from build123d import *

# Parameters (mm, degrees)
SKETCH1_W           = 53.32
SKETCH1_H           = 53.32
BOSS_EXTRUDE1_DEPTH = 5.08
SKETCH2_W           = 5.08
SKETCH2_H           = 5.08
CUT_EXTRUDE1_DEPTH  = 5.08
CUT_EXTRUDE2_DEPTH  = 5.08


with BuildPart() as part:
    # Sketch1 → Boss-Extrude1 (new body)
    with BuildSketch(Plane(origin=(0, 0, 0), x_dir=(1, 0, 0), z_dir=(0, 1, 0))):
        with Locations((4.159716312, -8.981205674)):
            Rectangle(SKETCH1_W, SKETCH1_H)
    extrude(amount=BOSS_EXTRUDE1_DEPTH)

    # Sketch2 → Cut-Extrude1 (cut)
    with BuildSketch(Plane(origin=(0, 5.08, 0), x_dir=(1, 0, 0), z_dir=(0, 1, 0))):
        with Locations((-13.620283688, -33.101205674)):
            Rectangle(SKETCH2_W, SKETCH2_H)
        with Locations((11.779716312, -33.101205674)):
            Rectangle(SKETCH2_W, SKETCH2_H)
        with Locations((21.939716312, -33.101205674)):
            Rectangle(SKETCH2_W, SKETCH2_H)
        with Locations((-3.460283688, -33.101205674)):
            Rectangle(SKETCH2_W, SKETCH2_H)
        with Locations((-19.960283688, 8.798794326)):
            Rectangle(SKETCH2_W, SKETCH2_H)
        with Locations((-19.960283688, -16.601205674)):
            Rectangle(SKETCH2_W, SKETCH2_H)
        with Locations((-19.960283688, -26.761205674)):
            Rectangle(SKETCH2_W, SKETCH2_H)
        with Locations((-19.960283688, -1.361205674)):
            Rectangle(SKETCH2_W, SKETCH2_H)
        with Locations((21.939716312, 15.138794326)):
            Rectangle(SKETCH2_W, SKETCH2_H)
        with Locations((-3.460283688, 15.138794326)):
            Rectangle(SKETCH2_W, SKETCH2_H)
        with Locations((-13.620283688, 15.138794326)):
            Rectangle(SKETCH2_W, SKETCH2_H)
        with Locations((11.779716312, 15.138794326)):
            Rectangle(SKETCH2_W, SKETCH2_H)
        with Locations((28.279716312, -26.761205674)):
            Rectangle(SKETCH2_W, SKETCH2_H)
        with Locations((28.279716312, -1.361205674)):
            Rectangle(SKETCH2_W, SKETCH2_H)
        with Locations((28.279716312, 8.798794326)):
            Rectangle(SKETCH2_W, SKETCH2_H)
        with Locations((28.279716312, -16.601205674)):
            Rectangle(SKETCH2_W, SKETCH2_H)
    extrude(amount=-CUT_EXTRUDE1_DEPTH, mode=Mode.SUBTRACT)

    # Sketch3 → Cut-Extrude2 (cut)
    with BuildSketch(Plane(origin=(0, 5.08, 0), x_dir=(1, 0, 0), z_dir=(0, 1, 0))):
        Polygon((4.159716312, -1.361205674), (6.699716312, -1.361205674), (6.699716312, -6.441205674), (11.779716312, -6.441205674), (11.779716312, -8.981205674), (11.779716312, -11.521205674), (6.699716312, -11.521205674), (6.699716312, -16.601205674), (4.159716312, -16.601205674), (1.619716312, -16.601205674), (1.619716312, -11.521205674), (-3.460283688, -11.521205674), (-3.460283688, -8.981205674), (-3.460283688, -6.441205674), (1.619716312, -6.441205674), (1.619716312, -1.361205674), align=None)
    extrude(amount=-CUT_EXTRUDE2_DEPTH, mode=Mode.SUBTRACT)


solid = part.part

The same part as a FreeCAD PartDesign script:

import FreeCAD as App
import Part
import Sketcher

V = App.Vector
Q = App.Units.Quantity

doc = App.newDocument("Part")
params = doc.addObject("Spreadsheet::Sheet", "Params")
for row, (alias, value) in enumerate([
    ("pad1_length", "0.2 in"),
    ("sketch2_width", "0.2 in"),
    ("pocket1_length", "0.2 in"),
    ("sketch3_width", "0.2 in"),
    ("pocket2_length", "0.2 in"),
], start=1):
    params.set(f"A{row}", alias)
    params.set(f"B{row}", "=" + value)
    params.setAlias(f"B{row}", alias)

body = doc.addObject("PartDesign::Body", "Body")

# Sketch on XZ plane
sketch1 = body.newObject("Sketcher::SketchObject", "Sketch")
sketch1.AttachmentSupport = (doc.getObject("XZ_Plane"), [""])
sketch1.MapMode = "FlatFace"
sketch1.addGeometry(Part.LineSegment(V(-23, -18, 0), V(-23, 36, 0)), False)
sketch1.addGeometry(Part.LineSegment(V(-23, 36, 0), V(31, 36, 0)), False)
sketch1.addGeometry(Part.LineSegment(V(31, 36, 0), V(31, -18, 0)), False)
sketch1.addGeometry(Part.LineSegment(V(31, -18, 0), V(-23, -18, 0)), False)
sketch1.addConstraint(Sketcher.Constraint("Coincident", 0, 2, 1, 1))
sketch1.addConstraint(Sketcher.Constraint("Coincident", 1, 2, 2, 1))
sketch1.addConstraint(Sketcher.Constraint("Coincident", 2, 2, 3, 1))
sketch1.addConstraint(Sketcher.Constraint("Coincident", 3, 2, 0, 1))
sketch1.addConstraint(Sketcher.Constraint("Vertical", 0))
sketch1.addConstraint(Sketcher.Constraint("Horizontal", 1))
sketch1.addConstraint(Sketcher.Constraint("Vertical", 2))
sketch1.addConstraint(Sketcher.Constraint("Horizontal", 3))
sketch1.addConstraint(Sketcher.Constraint("Equal", 3, 0))
sketch1.addConstraint(Sketcher.Constraint("DistanceX", 1, 1, 1, 2, Q("53.32 mm")))
sketch1.addConstraint(Sketcher.Constraint("DistanceX", 0, 2, -1, 1, Q("22.500284 mm")))
sketch1.addConstraint(Sketcher.Constraint("DistanceY", -1, 1, 0, 2, Q("35.641206 mm")))
pad1 = body.newObject("PartDesign::Pad", "Pad")
pad1.Profile = sketch1
pad1.setExpression("Length", "Params.pad1_length")
pad1.Reversed = True

# Sketch on XZ plane
sketch2 = body.newObject("Sketcher::SketchObject", "Sketch001")
sketch2.AttachmentSupport = (doc.getObject("XZ_Plane"), [""])
sketch2.MapMode = "FlatFace"
sketch2.AttachmentOffset = App.Placement(V(0, 0, -0.2 * 25.4), App.Rotation())
sketch2.addGeometry(Part.LineSegment(V(-16, 31, 0), V(-16, 36, 0)), False)
sketch2.addGeometry(Part.LineSegment(V(-16, 36, 0), V(-11, 36, 0)), False)
sketch2.addGeometry(Part.LineSegment(V(-11, 36, 0), V(-11, 31, 0)), False)
sketch2.addGeometry(Part.LineSegment(V(-11, 31, 0), V(-16, 31, 0)), False)
sketch2.addGeometry(Part.LineSegment(V(9, 31, 0), V(9, 36, 0)), False)
sketch2.addGeometry(Part.LineSegment(V(9, 36, 0), V(14, 36, 0)), False)
sketch2.addGeometry(Part.LineSegment(V(14, 36, 0), V(14, 31, 0)), False)
sketch2.addGeometry(Part.LineSegment(V(14, 31, 0), V(9, 31, 0)), False)
sketch2.addGeometry(Part.LineSegment(V(19, 31, 0), V(19, 36, 0)), False)
sketch2.addGeometry(Part.LineSegment(V(19, 36, 0), V(24, 36, 0)), False)
sketch2.addGeometry(Part.LineSegment(V(24, 36, 0), V(24, 31, 0)), False)
sketch2.addGeometry(Part.LineSegment(V(24, 31, 0), V(19, 31, 0)), False)
sketch2.addGeometry(Part.LineSegment(V(-6, 31, 0), V(-6, 36, 0)), False)
sketch2.addGeometry(Part.LineSegment(V(-6, 36, 0), V(-1, 36, 0)), False)
sketch2.addGeometry(Part.LineSegment(V(-1, 36, 0), V(-1, 31, 0)), False)
sketch2.addGeometry(Part.LineSegment(V(-1, 31, 0), V(-6, 31, 0)), False)
sketch2.addGeometry(Part.LineSegment(V(-23, -11, 0), V(-23, -6, 0)), False)
sketch2.addGeometry(Part.LineSegment(V(-23, -6, 0), V(-17, -6, 0)), False)
sketch2.addGeometry(Part.LineSegment(V(-17, -6, 0), V(-17, -11, 0)), False)
sketch2.addGeometry(Part.LineSegment(V(-17, -11, 0), V(-23, -11, 0)), False)
sketch2.addGeometry(Part.LineSegment(V(-23, 14, 0), V(-23, 19, 0)), False)
sketch2.addGeometry(Part.LineSegment(V(-23, 19, 0), V(-17, 19, 0)), False)
sketch2.addGeometry(Part.LineSegment(V(-17, 19, 0), V(-17, 14, 0)), False)
sketch2.addGeometry(Part.LineSegment(V(-17, 14, 0), V(-23, 14, 0)), False)
sketch2.addGeometry(Part.LineSegment(V(-23, 24, 0), V(-23, 29, 0)), False)
sketch2.addGeometry(Part.LineSegment(V(-23, 29, 0), V(-17, 29, 0)), False)
sketch2.addGeometry(Part.LineSegment(V(-17, 29, 0), V(-17, 24, 0)), False)
sketch2.addGeometry(Part.LineSegment(V(-17, 24, 0), V(-23, 24, 0)), False)
sketch2.addGeometry(Part.LineSegment(V(-23, -1, 0), V(-23, 4, 0)), False)
sketch2.addGeometry(Part.LineSegment(V(-23, 4, 0), V(-17, 4, 0)), False)
sketch2.addGeometry(Part.LineSegment(V(-17, 4, 0), V(-17, -1, 0)), False)
sketch2.addGeometry(Part.LineSegment(V(-17, -1, 0), V(-23, -1, 0)), False)
sketch2.addGeometry(Part.LineSegment(V(19, -18, 0), V(19, -13, 0)), False)
sketch2.addGeometry(Part.LineSegment(V(19, -13, 0), V(24, -13, 0)), False)
sketch2.addGeometry(Part.LineSegment(V(24, -13, 0), V(24, -18, 0)), False)
sketch2.addGeometry(Part.LineSegment(V(24, -18, 0), V(19, -18, 0)), False)
sketch2.addGeometry(Part.LineSegment(V(-6, -18, 0), V(-6, -13, 0)), False)
sketch2.addGeometry(Part.LineSegment(V(-6, -13, 0), V(-1, -13, 0)), False)
sketch2.addGeometry(Part.LineSegment(V(-1, -13, 0), V(-1, -18, 0)), False)
sketch2.addGeometry(Part.LineSegment(V(-1, -18, 0), V(-6, -18, 0)), False)
sketch2.addGeometry(Part.LineSegment(V(-16, -18, 0), V(-16, -13, 0)), False)
sketch2.addGeometry(Part.LineSegment(V(-16, -13, 0), V(-11, -13, 0)), False)
sketch2.addGeometry(Part.LineSegment(V(-11, -13, 0), V(-11, -18, 0)), False)
sketch2.addGeometry(Part.LineSegment(V(-11, -18, 0), V(-16, -18, 0)), False)
sketch2.addGeometry(Part.LineSegment(V(9, -18, 0), V(9, -13, 0)), False)
sketch2.addGeometry(Part.LineSegment(V(9, -13, 0), V(14, -13, 0)), False)
sketch2.addGeometry(Part.LineSegment(V(14, -13, 0), V(14, -18, 0)), False)
sketch2.addGeometry(Part.LineSegment(V(14, -18, 0), V(9, -18, 0)), False)
sketch2.addGeometry(Part.LineSegment(V(26, 24, 0), V(26, 29, 0)), False)
sketch2.addGeometry(Part.LineSegment(V(26, 29, 0), V(31, 29, 0)), False)
sketch2.addGeometry(Part.LineSegment(V(31, 29, 0), V(31, 24, 0)), False)
sketch2.addGeometry(Part.LineSegment(V(31, 24, 0), V(26, 24, 0)), False)
sketch2.addGeometry(Part.LineSegment(V(26, -1, 0), V(26, 4, 0)), False)
sketch2.addGeometry(Part.LineSegment(V(26, 4, 0), V(31, 4, 0)), False)
sketch2.addGeometry(Part.LineSegment(V(31, 4, 0), V(31, -1, 0)), False)
sketch2.addGeometry(Part.LineSegment(V(31, -1, 0), V(26, -1, 0)), False)
sketch2.addGeometry(Part.LineSegment(V(26, -11, 0), V(26, -6, 0)), False)
sketch2.addGeometry(Part.LineSegment(V(26, -6, 0), V(31, -6, 0)), False)
sketch2.addGeometry(Part.LineSegment(V(31, -6, 0), V(31, -11, 0)), False)
sketch2.addGeometry(Part.LineSegment(V(31, -11, 0), V(26, -11, 0)), False)
sketch2.addGeometry(Part.LineSegment(V(26, 14, 0), V(26, 19, 0)), False)
sketch2.addGeometry(Part.LineSegment(V(26, 19, 0), V(31, 19, 0)), False)
sketch2.addGeometry(Part.LineSegment(V(31, 19, 0), V(31, 14, 0)), False)
sketch2.addGeometry(Part.LineSegment(V(31, 14, 0), V(26, 14, 0)), False)
sketch2.addConstraint(Sketcher.Constraint("Coincident", 0, 2, 1, 1))
sketch2.addConstraint(Sketcher.Constraint("Coincident", 1, 2, 2, 1))
sketch2.addConstraint(Sketcher.Constraint("Coincident", 2, 2, 3, 1))
sketch2.addConstraint(Sketcher.Constraint("Coincident", 3, 2, 0, 1))
sketch2.addConstraint(Sketcher.Constraint("Coincident", 4, 2, 5, 1))
sketch2.addConstraint(Sketcher.Constraint("Coincident", 5, 2, 6, 1))
sketch2.addConstraint(Sketcher.Constraint("Coincident", 6, 2, 7, 1))
sketch2.addConstraint(Sketcher.Constraint("Coincident", 7, 2, 4, 1))
sketch2.addConstraint(Sketcher.Constraint("Coincident", 8, 2, 9, 1))
sketch2.addConstraint(Sketcher.Constraint("Coincident", 9, 2, 10, 1))
sketch2.addConstraint(Sketcher.Constraint("Coincident", 10, 2, 11, 1))
sketch2.addConstraint(Sketcher.Constraint("Coincident", 11, 2, 8, 1))
sketch2.addConstraint(Sketcher.Constraint("Coincident", 12, 2, 13, 1))
sketch2.addConstraint(Sketcher.Constraint("Coincident", 13, 2, 14, 1))
sketch2.addConstraint(Sketcher.Constraint("Coincident", 14, 2, 15, 1))
sketch2.addConstraint(Sketcher.Constraint("Coincident", 15, 2, 12, 1))
sketch2.addConstraint(Sketcher.Constraint("Coincident", 16, 2, 17, 1))
sketch2.addConstraint(Sketcher.Constraint("Coincident", 17, 2, 18, 1))
sketch2.addConstraint(Sketcher.Constraint("Coincident", 18, 2, 19, 1))
sketch2.addConstraint(Sketcher.Constraint("Coincident", 19, 2, 16, 1))
sketch2.addConstraint(Sketcher.Constraint("Coincident", 20, 2, 21, 1))
sketch2.addConstraint(Sketcher.Constraint("Coincident", 21, 2, 22, 1))
sketch2.addConstraint(Sketcher.Constraint("Coincident", 22, 2, 23, 1))
sketch2.addConstraint(Sketcher.Constraint("Coincident", 23, 2, 20, 1))
sketch2.addConstraint(Sketcher.Constraint("Coincident", 24, 2, 25, 1))
sketch2.addConstraint(Sketcher.Constraint("Coincident", 25, 2, 26, 1))
sketch2.addConstraint(Sketcher.Constraint("Coincident", 26, 2, 27, 1))
sketch2.addConstraint(Sketcher.Constraint("Coincident", 27, 2, 24, 1))
sketch2.addConstraint(Sketcher.Constraint("Coincident", 28, 2, 29, 1))
sketch2.addConstraint(Sketcher.Constraint("Coincident", 29, 2, 30, 1))
sketch2.addConstraint(Sketcher.Constraint("Coincident", 30, 2, 31, 1))
sketch2.addConstraint(Sketcher.Constraint("Coincident", 31, 2, 28, 1))
sketch2.addConstraint(Sketcher.Constraint("Coincident", 32, 2, 33, 1))
sketch2.addConstraint(Sketcher.Constraint("Coincident", 33, 2, 34, 1))
sketch2.addConstraint(Sketcher.Constraint("Coincident", 34, 2, 35, 1))
sketch2.addConstraint(Sketcher.Constraint("Coincident", 35, 2, 32, 1))
sketch2.addConstraint(Sketcher.Constraint("Coincident", 36, 2, 37, 1))
sketch2.addConstraint(Sketcher.Constraint("Coincident", 37, 2, 38, 1))
sketch2.addConstraint(Sketcher.Constraint("Coincident", 38, 2, 39, 1))
sketch2.addConstraint(Sketcher.Constraint("Coincident", 39, 2, 36, 1))
sketch2.addConstraint(Sketcher.Constraint("Coincident", 40, 2, 41, 1))
sketch2.addConstraint(Sketcher.Constraint("Coincident", 41, 2, 42, 1))
sketch2.addConstraint(Sketcher.Constraint("Coincident", 42, 2, 43, 1))
sketch2.addConstraint(Sketcher.Constraint("Coincident", 43, 2, 40, 1))
sketch2.addConstraint(Sketcher.Constraint("Coincident", 44, 2, 45, 1))
sketch2.addConstraint(Sketcher.Constraint("Coincident", 45, 2, 46, 1))
sketch2.addConstraint(Sketcher.Constraint("Coincident", 46, 2, 47, 1))
sketch2.addConstraint(Sketcher.Constraint("Coincident", 47, 2, 44, 1))
sketch2.addConstraint(Sketcher.Constraint("Coincident", 48, 2, 49, 1))
sketch2.addConstraint(Sketcher.Constraint("Coincident", 49, 2, 50, 1))
sketch2.addConstraint(Sketcher.Constraint("Coincident", 50, 2, 51, 1))
sketch2.addConstraint(Sketcher.Constraint("Coincident", 51, 2, 48, 1))
sketch2.addConstraint(Sketcher.Constraint("Coincident", 52, 2, 53, 1))
sketch2.addConstraint(Sketcher.Constraint("Coincident", 53, 2, 54, 1))
sketch2.addConstraint(Sketcher.Constraint("Coincident", 54, 2, 55, 1))
sketch2.addConstraint(Sketcher.Constraint("Coincident", 55, 2, 52, 1))
sketch2.addConstraint(Sketcher.Constraint("Coincident", 56, 2, 57, 1))
sketch2.addConstraint(Sketcher.Constraint("Coincident", 57, 2, 58, 1))
sketch2.addConstraint(Sketcher.Constraint("Coincident", 58, 2, 59, 1))
sketch2.addConstraint(Sketcher.Constraint("Coincident", 59, 2, 56, 1))
sketch2.addConstraint(Sketcher.Constraint("Coincident", 60, 2, 61, 1))
sketch2.addConstraint(Sketcher.Constraint("Coincident", 61, 2, 62, 1))
sketch2.addConstraint(Sketcher.Constraint("Coincident", 62, 2, 63, 1))
sketch2.addConstraint(Sketcher.Constraint("Coincident", 63, 2, 60, 1))
sketch2.addConstraint(Sketcher.Constraint("Vertical", 0))
sketch2.addConstraint(Sketcher.Constraint("Horizontal", 1))
sketch2.addConstraint(Sketcher.Constraint("Vertical", 2))
sketch2.addConstraint(Sketcher.Constraint("Horizontal", 3))
sketch2.addConstraint(Sketcher.Constraint("Vertical", 4))
sketch2.addConstraint(Sketcher.Constraint("Horizontal", 5))
sketch2.addConstraint(Sketcher.Constraint("Vertical", 6))
sketch2.addConstraint(Sketcher.Constraint("Horizontal", 7))
sketch2.addConstraint(Sketcher.Constraint("Vertical", 8))
sketch2.addConstraint(Sketcher.Constraint("Horizontal", 9))
sketch2.addConstraint(Sketcher.Constraint("Vertical", 10))
sketch2.addConstraint(Sketcher.Constraint("Horizontal", 11))
sketch2.addConstraint(Sketcher.Constraint("Vertical", 12))
sketch2.addConstraint(Sketcher.Constraint("Horizontal", 13))
sketch2.addConstraint(Sketcher.Constraint("Vertical", 14))
sketch2.addConstraint(Sketcher.Constraint("Horizontal", 15))
sketch2.addConstraint(Sketcher.Constraint("Vertical", 16))
sketch2.addConstraint(Sketcher.Constraint("Horizontal", 17))
sketch2.addConstraint(Sketcher.Constraint("Vertical", 18))
sketch2.addConstraint(Sketcher.Constraint("Horizontal", 19))
sketch2.addConstraint(Sketcher.Constraint("Vertical", 20))
sketch2.addConstraint(Sketcher.Constraint("Horizontal", 21))
sketch2.addConstraint(Sketcher.Constraint("Vertical", 22))
sketch2.addConstraint(Sketcher.Constraint("Horizontal", 23))
sketch2.addConstraint(Sketcher.Constraint("Vertical", 24))
sketch2.addConstraint(Sketcher.Constraint("Horizontal", 25))
sketch2.addConstraint(Sketcher.Constraint("Vertical", 26))
sketch2.addConstraint(Sketcher.Constraint("Horizontal", 27))
sketch2.addConstraint(Sketcher.Constraint("Vertical", 28))
sketch2.addConstraint(Sketcher.Constraint("Horizontal", 29))
sketch2.addConstraint(Sketcher.Constraint("Vertical", 30))
sketch2.addConstraint(Sketcher.Constraint("Horizontal", 31))
sketch2.addConstraint(Sketcher.Constraint("Vertical", 32))
sketch2.addConstraint(Sketcher.Constraint("Horizontal", 33))
sketch2.addConstraint(Sketcher.Constraint("Vertical", 34))
sketch2.addConstraint(Sketcher.Constraint("Horizontal", 35))
sketch2.addConstraint(Sketcher.Constraint("Vertical", 36))
sketch2.addConstraint(Sketcher.Constraint("Horizontal", 37))
sketch2.addConstraint(Sketcher.Constraint("Vertical", 38))
sketch2.addConstraint(Sketcher.Constraint("Horizontal", 39))
sketch2.addConstraint(Sketcher.Constraint("Vertical", 40))
sketch2.addConstraint(Sketcher.Constraint("Horizontal", 41))
sketch2.addConstraint(Sketcher.Constraint("Vertical", 42))
sketch2.addConstraint(Sketcher.Constraint("Horizontal", 43))
sketch2.addConstraint(Sketcher.Constraint("Vertical", 44))
sketch2.addConstraint(Sketcher.Constraint("Horizontal", 45))
sketch2.addConstraint(Sketcher.Constraint("Vertical", 46))
sketch2.addConstraint(Sketcher.Constraint("Horizontal", 47))
sketch2.addConstraint(Sketcher.Constraint("Vertical", 48))
sketch2.addConstraint(Sketcher.Constraint("Horizontal", 49))
sketch2.addConstraint(Sketcher.Constraint("Vertical", 50))
sketch2.addConstraint(Sketcher.Constraint("Horizontal", 51))
sketch2.addConstraint(Sketcher.Constraint("Vertical", 52))
sketch2.addConstraint(Sketcher.Constraint("Horizontal", 53))
sketch2.addConstraint(Sketcher.Constraint("Vertical", 54))
sketch2.addConstraint(Sketcher.Constraint("Horizontal", 55))
sketch2.addConstraint(Sketcher.Constraint("Vertical", 56))
sketch2.addConstraint(Sketcher.Constraint("Horizontal", 57))
sketch2.addConstraint(Sketcher.Constraint("Vertical", 58))
sketch2.addConstraint(Sketcher.Constraint("Horizontal", 59))
sketch2.addConstraint(Sketcher.Constraint("Vertical", 60))
sketch2.addConstraint(Sketcher.Constraint("Horizontal", 61))
sketch2.addConstraint(Sketcher.Constraint("Vertical", 62))
sketch2.addConstraint(Sketcher.Constraint("Horizontal", 63))
sketch2.addConstraint(Sketcher.Constraint("Horizontal", 1, 2, 4, 2))
sketch2.addConstraint(Sketcher.Constraint("Horizontal", 3, 2, 6, 2))
sketch2.addConstraint(Sketcher.Constraint("Horizontal", 5, 2, 8, 2))
sketch2.addConstraint(Sketcher.Constraint("Horizontal", 7, 2, 10, 2))
sketch2.addConstraint(Sketcher.Constraint("Horizontal", 9, 2, 12, 2))
sketch2.addConstraint(Sketcher.Constraint("Horizontal", 11, 2, 14, 2))
sketch2.addConstraint(Sketcher.Constraint("Horizontal", 33, 2, 36, 2))
sketch2.addConstraint(Sketcher.Constraint("Horizontal", 35, 2, 38, 2))
sketch2.addConstraint(Sketcher.Constraint("Horizontal", 37, 2, 40, 2))
sketch2.addConstraint(Sketcher.Constraint("Horizontal", 39, 2, 42, 2))
sketch2.addConstraint(Sketcher.Constraint("Horizontal", 41, 2, 44, 2))
sketch2.addConstraint(Sketcher.Constraint("Horizontal", 43, 2, 46, 2))
sketch2.addConstraint(Sketcher.Constraint("Horizontal", 25, 2, 48, 2))
sketch2.addConstraint(Sketcher.Constraint("Horizontal", 27, 2, 50, 2))
sketch2.addConstraint(Sketcher.Constraint("Horizontal", 29, 2, 52, 2))
sketch2.addConstraint(Sketcher.Constraint("Horizontal", 31, 2, 54, 2))
sketch2.addConstraint(Sketcher.Constraint("Horizontal", 17, 2, 56, 2))
sketch2.addConstraint(Sketcher.Constraint("Horizontal", 19, 2, 58, 2))
sketch2.addConstraint(Sketcher.Constraint("Horizontal", 21, 2, 60, 2))
sketch2.addConstraint(Sketcher.Constraint("Horizontal", 23, 2, 62, 2))
sketch2.addConstraint(Sketcher.Constraint("Vertical", 19, 2, 20, 2))
sketch2.addConstraint(Sketcher.Constraint("Vertical", 18, 2, 21, 2))
sketch2.addConstraint(Sketcher.Constraint("Vertical", 23, 2, 24, 2))
sketch2.addConstraint(Sketcher.Constraint("Vertical", 22, 2, 25, 2))
sketch2.addConstraint(Sketcher.Constraint("Vertical", 27, 2, 28, 2))
sketch2.addConstraint(Sketcher.Constraint("Vertical", 26, 2, 29, 2))
sketch2.addConstraint(Sketcher.Constraint("Vertical", 11, 2, 32, 2))
sketch2.addConstraint(Sketcher.Constraint("Vertical", 10, 2, 33, 2))
sketch2.addConstraint(Sketcher.Constraint("Vertical", 15, 2, 36, 2))
sketch2.addConstraint(Sketcher.Constraint("Vertical", 14, 2, 37, 2))
sketch2.addConstraint(Sketcher.Constraint("Vertical", 3, 2, 40, 2))
sketch2.addConstraint(Sketcher.Constraint("Vertical", 2, 2, 41, 2))
sketch2.addConstraint(Sketcher.Constraint("Vertical", 7, 2, 44, 2))
sketch2.addConstraint(Sketcher.Constraint("Vertical", 6, 2, 45, 2))
sketch2.addConstraint(Sketcher.Constraint("Vertical", 51, 2, 52, 2))
sketch2.addConstraint(Sketcher.Constraint("Vertical", 50, 2, 53, 2))
sketch2.addConstraint(Sketcher.Constraint("Vertical", 55, 2, 56, 2))
sketch2.addConstraint(Sketcher.Constraint("Vertical", 54, 2, 57, 2))
sketch2.addConstraint(Sketcher.Constraint("Vertical", 59, 2, 60, 2))
sketch2.addConstraint(Sketcher.Constraint("Vertical", 58, 2, 61, 2))
sketch2.addConstraint(Sketcher.Constraint("Equal", 3, 5))
sketch2.addConstraint(Sketcher.Constraint("Equal", 7, 9))
sketch2.addConstraint(Sketcher.Constraint("Equal", 11, 13))
sketch2.addConstraint(Sketcher.Constraint("Equal", 15, 17))
sketch2.addConstraint(Sketcher.Constraint("Equal", 47, 49))
sketch2.addConstraint(Sketcher.Constraint("Equal", 63, 0))
sketch2.addConstraint(Sketcher.Constraint("Equal", 14, 16))
sketch2.addConstraint(Sketcher.Constraint("Equal", 18, 20))
sketch2.addConstraint(Sketcher.Constraint("Equal", 22, 24))
sketch2.addConstraint(Sketcher.Constraint("Equal", 26, 28))
sketch2.addConstraint(Sketcher.Constraint("Equal", 30, 32))
sketch2.addConstraint(Sketcher.Constraint("DistanceX", 1, 1, 1, 2, Q("0.2 in")))
sketch2.addConstraint(Sketcher.Constraint("DistanceX", 0, 2, -1, 1, Q("16.160284 mm")))
sketch2.addConstraint(Sketcher.Constraint("DistanceY", -1, 1, 0, 2, Q("35.641206 mm")))
sketch2.addConstraint(Sketcher.Constraint("DistanceX", -1, 1, 4, 2, Q("9.239716 mm")))
sketch2.addConstraint(Sketcher.Constraint("DistanceX", -1, 1, 8, 2, Q("19.399716 mm")))
sketch2.addConstraint(Sketcher.Constraint("DistanceX", 12, 2, -1, 1, Q("6.000284 mm")))
sketch2.addConstraint(Sketcher.Constraint("DistanceX", 16, 2, -1, 1, Q("22.500284 mm")))
sketch2.addConstraint(Sketcher.Constraint("DistanceY", 16, 2, -1, 1, Q("6.258794 mm")))
sketch2.addConstraint(Sketcher.Constraint("DistanceY", -1, 1, 20, 2, Q("19.141206 mm")))
sketch2.addConstraint(Sketcher.Constraint("DistanceY", -1, 1, 24, 2, Q("29.301206 mm")))
sketch2.addConstraint(Sketcher.Constraint("DistanceY", -1, 1, 28, 2, Q("3.901206 mm")))
sketch2.addConstraint(Sketcher.Constraint("DistanceY", 32, 2, -1, 1, Q("12.598794 mm")))
sketch2.addConstraint(Sketcher.Constraint("DistanceX", -1, 1, 48, 2, Q("25.739716 mm")))
sketch2.setExpression("Constraints[179]", "Params.sketch2_width")
pocket1 = body.newObject("PartDesign::Pocket", "Pocket")
pocket1.Profile = sketch2
pocket1.setExpression("Length", "Params.pocket1_length")
pocket1.Reversed = True

# Sketch on XZ plane
sketch3 = body.newObject("Sketcher::SketchObject", "Sketch002")
sketch3.AttachmentSupport = (doc.getObject("XZ_Plane"), [""])
sketch3.MapMode = "FlatFace"
sketch3.AttachmentOffset = App.Placement(V(0, 0, -0.2 * 25.4), App.Rotation())
sketch3.addGeometry(Part.LineSegment(V(7, 1, 0), V(2, 1, 0)), False)
sketch3.addGeometry(Part.LineSegment(V(2, 1, 0), V(2, 6, 0)), False)
sketch3.addGeometry(Part.LineSegment(V(2, 6, 0), V(-3, 6, 0)), False)
sketch3.addGeometry(Part.LineSegment(V(-3, 6, 0), V(-3, 12, 0)), False)
sketch3.addGeometry(Part.LineSegment(V(-3, 12, 0), V(2, 12, 0)), False)
sketch3.addGeometry(Part.LineSegment(V(2, 12, 0), V(2, 17, 0)), False)
sketch3.addGeometry(Part.LineSegment(V(2, 17, 0), V(7, 17, 0)), False)
sketch3.addGeometry(Part.LineSegment(V(7, 17, 0), V(7, 12, 0)), False)
sketch3.addGeometry(Part.LineSegment(V(7, 12, 0), V(12, 12, 0)), False)
sketch3.addGeometry(Part.LineSegment(V(12, 12, 0), V(12, 6, 0)), False)
sketch3.addGeometry(Part.LineSegment(V(12, 6, 0), V(7, 6, 0)), False)
sketch3.addGeometry(Part.LineSegment(V(7, 6, 0), V(7, 1, 0)), False)
sketch3.addConstraint(Sketcher.Constraint("Coincident", 0, 2, 1, 1))
sketch3.addConstraint(Sketcher.Constraint("Coincident", 1, 2, 2, 1))
sketch3.addConstraint(Sketcher.Constraint("Coincident", 2, 2, 3, 1))
sketch3.addConstraint(Sketcher.Constraint("Coincident", 3, 2, 4, 1))
sketch3.addConstraint(Sketcher.Constraint("Coincident", 4, 2, 5, 1))
sketch3.addConstraint(Sketcher.Constraint("Coincident", 5, 2, 6, 1))
sketch3.addConstraint(Sketcher.Constraint("Coincident", 6, 2, 7, 1))
sketch3.addConstraint(Sketcher.Constraint("Coincident", 7, 2, 8, 1))
sketch3.addConstraint(Sketcher.Constraint("Coincident", 8, 2, 9, 1))
sketch3.addConstraint(Sketcher.Constraint("Coincident", 9, 2, 10, 1))
sketch3.addConstraint(Sketcher.Constraint("Coincident", 10, 2, 11, 1))
sketch3.addConstraint(Sketcher.Constraint("Coincident", 11, 2, 0, 1))
sketch3.addConstraint(Sketcher.Constraint("Horizontal", 0))
sketch3.addConstraint(Sketcher.Constraint("Vertical", 1))
sketch3.addConstraint(Sketcher.Constraint("Horizontal", 2))
sketch3.addConstraint(Sketcher.Constraint("Vertical", 3))
sketch3.addConstraint(Sketcher.Constraint("Horizontal", 4))
sketch3.addConstraint(Sketcher.Constraint("Vertical", 5))
sketch3.addConstraint(Sketcher.Constraint("Horizontal", 6))
sketch3.addConstraint(Sketcher.Constraint("Vertical", 7))
sketch3.addConstraint(Sketcher.Constraint("Horizontal", 8))
sketch3.addConstraint(Sketcher.Constraint("Vertical", 9))
sketch3.addConstraint(Sketcher.Constraint("Horizontal", 10))
sketch3.addConstraint(Sketcher.Constraint("Vertical", 11))
sketch3.addConstraint(Sketcher.Constraint("Horizontal", 4, 2, 7, 2))
sketch3.addConstraint(Sketcher.Constraint("Horizontal", 2, 2, 9, 2))
sketch3.addConstraint(Sketcher.Constraint("Vertical", 1, 2, 4, 2))
sketch3.addConstraint(Sketcher.Constraint("Vertical", 7, 2, 10, 2))
sketch3.addConstraint(Sketcher.Constraint("Equal", 0, 2))
sketch3.addConstraint(Sketcher.Constraint("Equal", 6, 8))
sketch3.addConstraint(Sketcher.Constraint("Equal", 10, 1))
sketch3.addConstraint(Sketcher.Constraint("Equal", 1, 3))
sketch3.addConstraint(Sketcher.Constraint("Equal", 3, 5))
sketch3.addConstraint(Sketcher.Constraint("DistanceX", 0, 2, 0, 1, Q("0.2 in")))
sketch3.addConstraint(Sketcher.Constraint("DistanceX", -1, 1, 0, 2, Q("1.619716 mm")))
sketch3.addConstraint(Sketcher.Constraint("DistanceY", -1, 1, 0, 2, Q("1.361206 mm")))
sketch3.setExpression("Constraints[33]", "Params.sketch3_width")
pocket2 = body.newObject("PartDesign::Pocket", "Pocket001")
pocket2.Profile = sketch3
pocket2.setExpression("Length", "Params.pocket2_length")
pocket2.Reversed = True

doc.recompute()
